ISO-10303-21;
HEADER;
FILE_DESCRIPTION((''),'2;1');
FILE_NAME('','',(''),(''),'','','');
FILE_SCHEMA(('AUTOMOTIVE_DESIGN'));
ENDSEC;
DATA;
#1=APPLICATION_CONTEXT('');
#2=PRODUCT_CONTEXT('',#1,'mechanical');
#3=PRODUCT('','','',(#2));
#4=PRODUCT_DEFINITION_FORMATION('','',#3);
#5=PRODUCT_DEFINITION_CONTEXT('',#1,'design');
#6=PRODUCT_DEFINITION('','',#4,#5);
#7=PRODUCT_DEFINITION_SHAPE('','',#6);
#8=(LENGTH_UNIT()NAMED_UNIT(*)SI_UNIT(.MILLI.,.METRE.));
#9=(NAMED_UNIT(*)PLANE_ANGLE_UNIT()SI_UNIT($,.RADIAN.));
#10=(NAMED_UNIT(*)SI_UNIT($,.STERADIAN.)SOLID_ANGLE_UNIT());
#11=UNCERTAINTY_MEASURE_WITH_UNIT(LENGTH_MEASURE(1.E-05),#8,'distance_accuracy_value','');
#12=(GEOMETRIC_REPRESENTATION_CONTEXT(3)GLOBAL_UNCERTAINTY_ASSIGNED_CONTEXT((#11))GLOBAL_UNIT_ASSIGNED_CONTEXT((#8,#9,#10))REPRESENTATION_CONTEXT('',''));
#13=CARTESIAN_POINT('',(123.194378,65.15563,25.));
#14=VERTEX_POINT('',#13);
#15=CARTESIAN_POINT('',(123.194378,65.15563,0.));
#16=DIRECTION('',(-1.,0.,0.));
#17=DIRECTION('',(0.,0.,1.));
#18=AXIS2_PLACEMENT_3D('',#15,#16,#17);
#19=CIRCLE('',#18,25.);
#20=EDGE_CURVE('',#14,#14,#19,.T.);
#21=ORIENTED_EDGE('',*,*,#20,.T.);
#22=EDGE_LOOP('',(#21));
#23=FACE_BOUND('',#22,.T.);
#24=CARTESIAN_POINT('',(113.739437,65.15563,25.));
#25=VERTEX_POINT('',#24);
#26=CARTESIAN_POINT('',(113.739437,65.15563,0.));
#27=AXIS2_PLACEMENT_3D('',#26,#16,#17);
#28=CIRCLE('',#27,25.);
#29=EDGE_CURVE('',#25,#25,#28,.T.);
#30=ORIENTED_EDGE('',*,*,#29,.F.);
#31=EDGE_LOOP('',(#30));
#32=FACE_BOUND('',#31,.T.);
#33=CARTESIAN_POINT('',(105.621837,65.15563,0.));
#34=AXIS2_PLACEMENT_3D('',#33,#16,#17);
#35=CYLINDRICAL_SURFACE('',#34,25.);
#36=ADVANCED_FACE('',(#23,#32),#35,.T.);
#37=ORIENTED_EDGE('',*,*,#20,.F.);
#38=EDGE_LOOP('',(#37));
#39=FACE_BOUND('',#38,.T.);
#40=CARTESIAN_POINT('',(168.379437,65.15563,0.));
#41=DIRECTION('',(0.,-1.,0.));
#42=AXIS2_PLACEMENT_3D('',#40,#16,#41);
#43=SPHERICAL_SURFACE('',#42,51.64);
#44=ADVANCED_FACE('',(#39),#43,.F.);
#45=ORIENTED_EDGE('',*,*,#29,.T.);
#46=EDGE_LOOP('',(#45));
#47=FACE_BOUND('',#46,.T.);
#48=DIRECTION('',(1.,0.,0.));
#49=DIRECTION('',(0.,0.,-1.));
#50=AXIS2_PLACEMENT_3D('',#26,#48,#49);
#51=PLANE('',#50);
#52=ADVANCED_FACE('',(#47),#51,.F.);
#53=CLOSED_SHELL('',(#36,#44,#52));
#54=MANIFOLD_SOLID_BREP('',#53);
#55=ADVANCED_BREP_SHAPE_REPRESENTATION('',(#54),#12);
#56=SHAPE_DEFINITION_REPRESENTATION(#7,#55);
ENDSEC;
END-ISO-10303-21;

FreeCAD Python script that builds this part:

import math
import FreeCAD as App
import Part
import Sketcher

doc = App.newDocument("Part")
body = doc.addObject("PartDesign::Body", "Body")

# Sketch on XY plane
sketch1 = doc.addObject("Sketcher::SketchObject", "Sketch")
body.addObject(sketch1)
sketch1.AttachmentSupport = (doc.XY_Plane, [""])
sketch1.MapMode = "FlatFace"
sketch1.addGeometry([
    Part.LineSegment(App.Vector(113.739437, 90.15563, 0), App.Vector(113.739437, 65.15563, 0)),
    Part.LineSegment(App.Vector(113.739437, 65.15563, 0), App.Vector(116.739437, 65.15563, 0)),
    Part.ArcOfCircle(Part.Circle(App.Vector(168.379437, 65.15563, 0), App.Vector(0, 0, 1), 51.64), math.radians(151.045112), math.radians(180)),
    Part.LineSegment(App.Vector(123.194378, 90.15563, 0), App.Vector(113.739437, 90.15563, 0)),
], False)
sketch1.addGeometry(Part.LineSegment(App.Vector(113.739437, 65.15563, 0), App.Vector(168.379437, 65.15563, 0)), True)  # axis
sketch1.addConstraint([
    Sketcher.Constraint("Coincident", 0, 2, 1, 1),
    Sketcher.Constraint("Coincident", 1, 2, 2, 2),
    Sketcher.Constraint("Coincident", 2, 1, 3, 1),
    Sketcher.Constraint("Coincident", 3, 2, 0, 1),
    Sketcher.Constraint("Vertical", 0),
    Sketcher.Constraint("Horizontal", 1),
    Sketcher.Constraint("Horizontal", 3),
    Sketcher.Constraint("Horizontal", 4),
    Sketcher.Constraint("Coincident", 4, 1, 0, 2),
    Sketcher.Constraint("Coincident", 4, 2, 2, 3),
    Sketcher.Constraint("DistanceX", 1, 1, 1, 2, 3.0),
    Sketcher.Constraint("DistanceY", 0, 2, 0, 1, 25.0),
    Sketcher.Constraint("Radius", 2, 51.64),
    Sketcher.Constraint("DistanceY", -1, 1, 2, 3, 65.15563),
    Sketcher.Constraint("DistanceX", -1, 1, 2, 3, 168.379437),
])
revolution = doc.addObject("PartDesign::Revolution", "Revolution")
body.addObject(revolution)
revolution.Profile = sketch1
revolution.ReferenceAxis = (sketch1, ["Axis0"])
revolution.Angle = 360

doc.recompute()
